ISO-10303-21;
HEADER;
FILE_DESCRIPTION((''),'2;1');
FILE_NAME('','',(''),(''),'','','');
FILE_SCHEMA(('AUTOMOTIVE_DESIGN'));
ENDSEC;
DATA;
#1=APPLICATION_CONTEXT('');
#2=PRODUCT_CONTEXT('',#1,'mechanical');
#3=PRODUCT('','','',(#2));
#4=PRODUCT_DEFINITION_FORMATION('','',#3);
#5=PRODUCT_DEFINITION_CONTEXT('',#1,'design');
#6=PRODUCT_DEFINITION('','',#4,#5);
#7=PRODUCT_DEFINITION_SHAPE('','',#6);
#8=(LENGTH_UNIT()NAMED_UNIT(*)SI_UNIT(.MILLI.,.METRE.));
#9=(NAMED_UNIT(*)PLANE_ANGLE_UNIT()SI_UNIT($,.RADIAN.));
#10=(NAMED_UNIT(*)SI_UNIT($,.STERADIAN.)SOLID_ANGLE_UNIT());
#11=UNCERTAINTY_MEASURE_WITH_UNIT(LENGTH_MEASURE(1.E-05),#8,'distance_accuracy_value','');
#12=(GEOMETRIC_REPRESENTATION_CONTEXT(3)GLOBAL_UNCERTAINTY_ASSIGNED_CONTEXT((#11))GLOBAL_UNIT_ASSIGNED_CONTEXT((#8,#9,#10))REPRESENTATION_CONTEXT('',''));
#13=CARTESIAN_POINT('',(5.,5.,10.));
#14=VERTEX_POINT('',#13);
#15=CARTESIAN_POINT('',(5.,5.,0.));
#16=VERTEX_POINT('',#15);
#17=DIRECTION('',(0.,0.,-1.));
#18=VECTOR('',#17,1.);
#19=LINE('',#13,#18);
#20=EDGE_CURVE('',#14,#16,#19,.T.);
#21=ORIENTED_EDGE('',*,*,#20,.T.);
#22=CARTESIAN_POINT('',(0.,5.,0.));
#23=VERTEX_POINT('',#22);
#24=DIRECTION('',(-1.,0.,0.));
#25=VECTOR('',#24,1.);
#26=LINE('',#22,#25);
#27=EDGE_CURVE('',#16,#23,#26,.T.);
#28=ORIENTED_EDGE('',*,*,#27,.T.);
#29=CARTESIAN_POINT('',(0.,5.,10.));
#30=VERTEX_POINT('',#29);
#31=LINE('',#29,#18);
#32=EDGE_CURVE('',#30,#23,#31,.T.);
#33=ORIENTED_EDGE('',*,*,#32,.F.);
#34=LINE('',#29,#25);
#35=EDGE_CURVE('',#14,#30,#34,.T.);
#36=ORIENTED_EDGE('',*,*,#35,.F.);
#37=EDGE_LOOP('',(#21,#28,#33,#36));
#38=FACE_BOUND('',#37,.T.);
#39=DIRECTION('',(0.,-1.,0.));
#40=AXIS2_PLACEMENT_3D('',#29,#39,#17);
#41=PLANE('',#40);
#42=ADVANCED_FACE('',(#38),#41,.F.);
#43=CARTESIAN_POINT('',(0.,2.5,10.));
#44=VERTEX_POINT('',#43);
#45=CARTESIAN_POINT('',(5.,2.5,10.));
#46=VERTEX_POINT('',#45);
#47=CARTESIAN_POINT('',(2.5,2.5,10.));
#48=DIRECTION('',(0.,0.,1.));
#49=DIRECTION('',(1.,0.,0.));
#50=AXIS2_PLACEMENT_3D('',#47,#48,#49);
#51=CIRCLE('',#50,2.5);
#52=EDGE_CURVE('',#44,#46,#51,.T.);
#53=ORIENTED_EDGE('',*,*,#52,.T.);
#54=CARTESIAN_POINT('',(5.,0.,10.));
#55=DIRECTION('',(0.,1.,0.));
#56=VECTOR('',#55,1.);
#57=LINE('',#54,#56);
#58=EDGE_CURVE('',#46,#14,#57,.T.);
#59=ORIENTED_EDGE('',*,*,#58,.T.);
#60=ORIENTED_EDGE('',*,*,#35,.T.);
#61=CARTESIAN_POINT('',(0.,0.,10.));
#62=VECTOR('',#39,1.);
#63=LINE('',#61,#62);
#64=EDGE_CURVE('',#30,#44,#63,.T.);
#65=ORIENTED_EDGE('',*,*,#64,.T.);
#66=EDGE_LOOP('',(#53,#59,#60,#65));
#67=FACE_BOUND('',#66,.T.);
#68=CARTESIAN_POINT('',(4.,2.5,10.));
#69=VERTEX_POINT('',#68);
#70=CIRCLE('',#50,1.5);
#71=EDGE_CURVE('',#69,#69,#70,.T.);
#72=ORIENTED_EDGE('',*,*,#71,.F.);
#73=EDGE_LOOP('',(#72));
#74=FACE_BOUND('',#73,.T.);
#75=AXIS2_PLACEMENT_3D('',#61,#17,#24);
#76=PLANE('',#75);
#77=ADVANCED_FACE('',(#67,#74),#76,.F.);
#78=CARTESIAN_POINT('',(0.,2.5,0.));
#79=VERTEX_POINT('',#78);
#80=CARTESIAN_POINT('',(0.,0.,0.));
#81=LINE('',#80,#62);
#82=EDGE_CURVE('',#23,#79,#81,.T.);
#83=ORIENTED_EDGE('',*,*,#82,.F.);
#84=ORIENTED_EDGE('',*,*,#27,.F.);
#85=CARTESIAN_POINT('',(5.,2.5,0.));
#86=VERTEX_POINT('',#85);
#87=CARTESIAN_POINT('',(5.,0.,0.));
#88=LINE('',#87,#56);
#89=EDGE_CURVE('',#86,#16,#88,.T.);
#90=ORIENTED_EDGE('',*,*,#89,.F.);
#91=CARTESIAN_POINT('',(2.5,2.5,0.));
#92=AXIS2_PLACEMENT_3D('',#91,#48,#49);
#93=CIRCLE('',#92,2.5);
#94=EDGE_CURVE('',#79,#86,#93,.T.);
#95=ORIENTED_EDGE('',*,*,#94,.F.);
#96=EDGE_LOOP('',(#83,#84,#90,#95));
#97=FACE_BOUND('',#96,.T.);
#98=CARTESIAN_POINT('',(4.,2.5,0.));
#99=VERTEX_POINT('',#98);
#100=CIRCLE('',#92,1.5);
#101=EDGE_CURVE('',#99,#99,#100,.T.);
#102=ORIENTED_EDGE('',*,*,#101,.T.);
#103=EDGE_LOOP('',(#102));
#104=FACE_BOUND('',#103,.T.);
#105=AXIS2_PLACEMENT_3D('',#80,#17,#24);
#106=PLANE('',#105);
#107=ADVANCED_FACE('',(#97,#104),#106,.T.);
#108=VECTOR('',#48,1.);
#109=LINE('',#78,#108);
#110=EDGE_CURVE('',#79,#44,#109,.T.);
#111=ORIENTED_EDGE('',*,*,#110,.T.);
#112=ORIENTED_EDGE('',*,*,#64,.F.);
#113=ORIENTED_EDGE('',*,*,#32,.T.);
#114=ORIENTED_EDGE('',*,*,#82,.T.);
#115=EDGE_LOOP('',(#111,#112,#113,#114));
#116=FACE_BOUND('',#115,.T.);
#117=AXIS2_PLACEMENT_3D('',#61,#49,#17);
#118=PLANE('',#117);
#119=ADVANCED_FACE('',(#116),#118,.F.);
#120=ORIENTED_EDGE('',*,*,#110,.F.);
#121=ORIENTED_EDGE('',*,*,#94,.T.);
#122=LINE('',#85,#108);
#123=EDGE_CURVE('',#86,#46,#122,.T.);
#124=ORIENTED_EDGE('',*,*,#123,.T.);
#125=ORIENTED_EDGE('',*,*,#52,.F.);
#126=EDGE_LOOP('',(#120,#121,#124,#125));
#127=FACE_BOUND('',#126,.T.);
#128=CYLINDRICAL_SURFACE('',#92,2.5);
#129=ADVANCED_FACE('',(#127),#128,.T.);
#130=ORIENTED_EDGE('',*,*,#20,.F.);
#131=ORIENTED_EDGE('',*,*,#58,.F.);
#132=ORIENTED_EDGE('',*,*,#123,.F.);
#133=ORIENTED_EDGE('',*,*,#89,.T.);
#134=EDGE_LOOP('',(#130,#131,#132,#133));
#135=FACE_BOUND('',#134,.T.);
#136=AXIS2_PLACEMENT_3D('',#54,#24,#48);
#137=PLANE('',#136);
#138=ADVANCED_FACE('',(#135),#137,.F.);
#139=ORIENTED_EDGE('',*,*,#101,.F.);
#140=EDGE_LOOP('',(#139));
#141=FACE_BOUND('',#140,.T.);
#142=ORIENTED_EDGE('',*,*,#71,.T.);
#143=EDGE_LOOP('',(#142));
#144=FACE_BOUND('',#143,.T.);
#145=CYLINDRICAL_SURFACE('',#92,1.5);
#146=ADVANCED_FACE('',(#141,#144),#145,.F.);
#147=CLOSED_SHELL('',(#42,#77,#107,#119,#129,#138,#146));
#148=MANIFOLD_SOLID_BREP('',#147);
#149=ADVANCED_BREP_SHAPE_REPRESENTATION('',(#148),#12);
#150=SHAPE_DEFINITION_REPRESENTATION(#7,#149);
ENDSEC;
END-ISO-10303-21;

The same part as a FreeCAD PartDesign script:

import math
import FreeCAD as App
import Part
import Sketcher

V = App.Vector
Q = App.Units.Quantity

doc = App.newDocument("Part")
body = doc.addObject("PartDesign::Body", "Body")

# Sketch on XY plane
sketch1 = body.newObject("Sketcher::SketchObject", "Sketch")
sketch1.AttachmentSupport = (doc.getObject("XY_Plane"), [""])
sketch1.MapMode = "FlatFace"
sketch1.addGeometry([
    Part.LineSegment(V(0, 5, 0), V(0, 0, 0)),
    Part.LineSegment(V(0, 0, 0), V(5, 0, 0)),
    Part.LineSegment(V(5, 0, 0), V(5, 5, 0)),
    Part.LineSegment(V(5, 5, 0), V(0, 5, 0)),
], False)
sketch1.addConstraint([
    Sketcher.Constraint("Coincident", 0, 2, 1, 1),
    Sketcher.Constraint("Coincident", 1, 2, 2, 1),
    Sketcher.Constraint("Coincident", 2, 2, 3, 1),
    Sketcher.Constraint("Coincident", 3, 2, 0, 1),
    Sketcher.Constraint("Vertical", 0),
    Sketcher.Constraint("Horizontal", 1),
    Sketcher.Constraint("Vertical", 2),
    Sketcher.Constraint("Horizontal", 3),
    Sketcher.Constraint("Coincident", 0, 2, -1, 1),
    Sketcher.Constraint("Equal", 3, 0),
    Sketcher.Constraint("DistanceX", 1, 1, 1, 2, Q("5 mm")),
])
pad1 = body.newObject("PartDesign::Pad", "Pad")
pad1.Profile = sketch1
pad1.Length = 10

# Sketch on XY plane
sketch2 = body.newObject("Sketcher::SketchObject", "Sketch001")
sketch2.AttachmentSupport = (doc.getObject("XY_Plane"), [""])
sketch2.MapMode = "FlatFace"
sketch2.AttachmentOffset = App.Placement(V(0, 0, 10), App.Rotation())
sketch2.addGeometry([
    Part.Circle(V(2.5, 2.5, 0), V(0, 0, 1), 1.5),  # 0
    Part.ArcOfCircle(Part.Circle(V(2.5, 2.5, 0), V(0, 0, 1), 2.5), math.radians(-90), math.radians(0)),  # 1
    Part.LineSegment(V(2.5, 0, 0), V(5, 0, 0)),  # 2
    Part.LineSegment(V(5, 0, 0), V(5, 2.5, 0)),  # 3
    Part.ArcOfCircle(Part.Circle(V(2.5, 2.5, 0), V(0, 0, 1), 2.5), math.radians(180), math.radians(270)),  # 4
    Part.LineSegment(V(0, 2.5, 0), V(0, 0, 0)),  # 5
    Part.LineSegment(V(0, 0, 0), V(2.5, 0, 0)),  # 6
], False)
sketch2.addConstraint([
    Sketcher.Constraint("Tangent", 1, 1, 2, 1),
    Sketcher.Constraint("Coincident", 2, 2, 3, 1),
    Sketcher.Constraint("Tangent", 3, 2, 1, 2),
    Sketcher.Constraint("Tangent", 4, 1, 5, 1),
    Sketcher.Constraint("Coincident", 5, 2, 6, 1),
    Sketcher.Constraint("Tangent", 6, 2, 4, 2),
    Sketcher.Constraint("Horizontal", 2),
    Sketcher.Constraint("Vertical", 3),
    Sketcher.Constraint("Vertical", 5),
    Sketcher.Constraint("Horizontal", 6),
    Sketcher.Constraint("Coincident", 5, 2, -1, 1),
    Sketcher.Constraint("Coincident", 1, 3, 0, 3),
    Sketcher.Constraint("Coincident", 4, 3, 0, 3),
    Sketcher.Constraint("Equal", 1, 4),
    Sketcher.Constraint("Diameter", 0, Q("3 mm")),
    Sketcher.Constraint("Radius", 1, Q("2.5 mm")),
])
pocket1 = body.newObject("PartDesign::Pocket", "Pocket")
pocket1.Profile = sketch2
pocket1.Type = "ThroughAll"

doc.recompute()
